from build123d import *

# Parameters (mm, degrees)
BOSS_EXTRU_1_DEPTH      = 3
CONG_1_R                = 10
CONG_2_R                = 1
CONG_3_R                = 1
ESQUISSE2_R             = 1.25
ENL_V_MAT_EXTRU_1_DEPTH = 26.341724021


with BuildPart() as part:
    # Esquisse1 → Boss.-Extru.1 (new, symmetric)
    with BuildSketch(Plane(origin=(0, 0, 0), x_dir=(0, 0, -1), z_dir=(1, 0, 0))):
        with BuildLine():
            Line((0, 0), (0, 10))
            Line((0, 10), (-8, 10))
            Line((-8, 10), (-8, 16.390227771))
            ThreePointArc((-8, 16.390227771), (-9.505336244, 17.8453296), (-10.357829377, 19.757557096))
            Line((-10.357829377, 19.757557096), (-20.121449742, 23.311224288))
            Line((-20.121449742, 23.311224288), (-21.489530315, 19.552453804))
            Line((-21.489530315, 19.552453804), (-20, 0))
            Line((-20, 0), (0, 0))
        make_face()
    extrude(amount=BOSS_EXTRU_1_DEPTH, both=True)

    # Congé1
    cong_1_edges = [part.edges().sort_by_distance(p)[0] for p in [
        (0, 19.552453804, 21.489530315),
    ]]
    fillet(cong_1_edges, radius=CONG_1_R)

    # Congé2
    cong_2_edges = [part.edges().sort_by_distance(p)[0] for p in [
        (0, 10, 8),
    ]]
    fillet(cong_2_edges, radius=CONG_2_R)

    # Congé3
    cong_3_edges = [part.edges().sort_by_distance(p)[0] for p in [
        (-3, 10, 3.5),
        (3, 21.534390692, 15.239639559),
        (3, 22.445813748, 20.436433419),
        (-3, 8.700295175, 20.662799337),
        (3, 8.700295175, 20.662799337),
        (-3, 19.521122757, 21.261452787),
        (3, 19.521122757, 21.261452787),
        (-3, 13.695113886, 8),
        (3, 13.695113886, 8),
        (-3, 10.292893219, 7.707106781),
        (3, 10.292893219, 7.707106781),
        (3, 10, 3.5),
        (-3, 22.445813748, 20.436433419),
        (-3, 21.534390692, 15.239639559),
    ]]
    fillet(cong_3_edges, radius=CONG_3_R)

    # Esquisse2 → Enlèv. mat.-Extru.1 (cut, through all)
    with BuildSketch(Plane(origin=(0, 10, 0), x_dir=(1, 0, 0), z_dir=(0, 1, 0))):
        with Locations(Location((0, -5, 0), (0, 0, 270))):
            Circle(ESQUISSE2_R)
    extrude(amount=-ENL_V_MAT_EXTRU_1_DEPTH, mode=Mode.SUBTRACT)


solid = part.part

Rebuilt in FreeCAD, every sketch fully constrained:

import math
import FreeCAD as App
import Part
import Sketcher
Q = App.Units.Quantity


def edges_at(feature, points):
    """Names of the edges that pass closest to the given points."""
    edges = feature.Shape.Edges
    near = lambda p: min(range(len(edges)), key=lambda i: edges[i].distToShape(Part.Vertex(*p))[0])
    return sorted({f"Edge{near(p) + 1}" for p in points})

doc = App.newDocument("Part")
body = doc.addObject("PartDesign::Body", "Body")

sketch1 = body.newObject("Sketcher::SketchObject", "Sketch")
sketch1.AttachmentSupport = (doc.getObject("YZ_Plane"), [""])
sketch1.MapMode = "FlatFace"
sketch1.addGeometry(Part.LineSegment(App.Vector(0, 0, 0), App.Vector(10, 0, 0)), False)
sketch1.addGeometry(Part.LineSegment(App.Vector(10, 0, 0), App.Vector(10, 8, 0)), False)
sketch1.addGeometry(Part.LineSegment(App.Vector(10, 8, 0), App.Vector(16.4, 8, 0)), False)
sketch1.addGeometry(Part.ArcOfCircle(Part.Circle(App.Vector(21, 5, 0), App.Vector(0, 0, 1), 5.5), math.radians(103), math.radians(147)), False)
sketch1.addGeometry(Part.LineSegment(App.Vector(19.8, 10.4, 0), App.Vector(23.3, 20.1, 0)), False)
sketch1.addGeometry(Part.LineSegment(App.Vector(23.3, 20.1, 0), App.Vector(19.6, 21.5, 0)), False)
sketch1.addGeometry(Part.LineSegment(App.Vector(19.6, 21.5, 0), App.Vector(0, 20, 0)), False)
sketch1.addGeometry(Part.LineSegment(App.Vector(0, 20, 0), App.Vector(0, 0, 0)), False)
sketch1.addConstraint(Sketcher.Constraint("Coincident", 0, 2, 1, 1))
sketch1.addConstraint(Sketcher.Constraint("Coincident", 1, 2, 2, 1))
sketch1.addConstraint(Sketcher.Constraint("Coincident", 2, 2, 3, 2))
sketch1.addConstraint(Sketcher.Constraint("Coincident", 3, 1, 4, 1))
sketch1.addConstraint(Sketcher.Constraint("Coincident", 4, 2, 5, 1))
sketch1.addConstraint(Sketcher.Constraint("Coincident", 5, 2, 6, 1))
sketch1.addConstraint(Sketcher.Constraint("Coincident", 6, 2, 7, 1))
sketch1.addConstraint(Sketcher.Constraint("Coincident", 7, 2, 0, 1))
sketch1.addConstraint(Sketcher.Constraint("Horizontal", 0))
sketch1.addConstraint(Sketcher.Constraint("Vertical", 1))
sketch1.addConstraint(Sketcher.Constraint("Horizontal", 2))
sketch1.addConstraint(Sketcher.Constraint("Vertical", 7))
sketch1.addConstraint(Sketcher.Constraint("Coincident", 7, 2, -1, 1))
sketch1.addConstraint(Sketcher.Constraint("Perpendicular", 4, 5))
sketch1.addConstraint(Sketcher.Constraint("Radius", 3, 5.5))
sketch1.addConstraint(Sketcher.Constraint("DistanceX", 0, 1, 0, 2, 10.0))
sketch1.addConstraint(Sketcher.Constraint("DistanceY", 1, 1, 1, 2, 8.0))
sketch1.addConstraint(Sketcher.Constraint("DistanceY", 7, 2, 7, 1, 20.0))
sketch1.addConstraint(Sketcher.Constraint("Angle", 4, Q("70 deg")))
sketch1.addConstraint(Sketcher.Constraint("Distance", 5, 4.0))
sketch1.addConstraint(Sketcher.Constraint("DistanceX", -1, 1, 3, 3, 21.0))
sketch1.addConstraint(Sketcher.Constraint("DistanceY", -1, 1, 3, 3, 5.0))
sketch1.addConstraint(Sketcher.Constraint("DistanceY", 3, 1, 5, 2, 11.131701))
sketch1.addConstraint(Sketcher.Constraint("Distance", 6, 19.609109))
pad1 = body.newObject("PartDesign::Pad", "Pad")
pad1.Profile = sketch1
pad1.Length = 6
pad1.Midplane = True
doc.recompute()

fillet = body.newObject("PartDesign::Fillet", "Fillet")
fillet.Base = (pad1, edges_at(pad1, [(0, 19.552, 21.49)]))
fillet.Radius = 10
doc.recompute()

fillet2 = body.newObject("PartDesign::Fillet", "Fillet001")
fillet2.Base = (fillet, edges_at(fillet, [(0, 10, 8)]))
fillet2.Radius = 1
doc.recompute()

fillet3 = body.newObject("PartDesign::Fillet", "Fillet002")
fillet3.Base = (fillet2, edges_at(fillet2, [
    (-3, 10, 3.5),
    (3, 21.534, 15.24),
    (3, 22.446, 20.436),
    (-3, 8.7, 20.663),
    (3, 8.7, 20.663),
    (-3, 19.521, 21.261),
    (3, 19.521, 21.261),
    (-3, 13.695, 8),
    (3, 13.695, 8),
    (-3, 10.293, 7.707),
    (3, 10.293, 7.707),
    (3, 10, 3.5),
    (-3, 22.446, 20.436),
    (-3, 21.534, 15.24),
]))
fillet3.Radius = 1

sketch2 = body.newObject("Sketcher::SketchObject", "Sketch001")
sketch2.AttachmentSupport = (doc.getObject("XZ_Plane"), [""])
sketch2.MapMode = "FlatFace"
sketch2.AttachmentOffset = App.Placement(App.Vector(0, 0, -10), App.Rotation())
sketch2.addGeometry(Part.Circle(App.Vector(0, 5, 0), App.Vector(0, 0, 1), 1.2), False)
sketch2.addConstraint(Sketcher.Constraint("PointOnObject", 0, 3, -2))
sketch2.addConstraint(Sketcher.Constraint("Diameter", 0, 2.5))
sketch2.addConstraint(Sketcher.Constraint("DistanceY", -1, 1, 0, 3, 5.0))
pocket1 = body.newObject("PartDesign::Pocket", "Pocket")
pocket1.Profile = sketch2
pocket1.Type = "ThroughAll"
pocket1.Reversed = True

doc.recompute()
